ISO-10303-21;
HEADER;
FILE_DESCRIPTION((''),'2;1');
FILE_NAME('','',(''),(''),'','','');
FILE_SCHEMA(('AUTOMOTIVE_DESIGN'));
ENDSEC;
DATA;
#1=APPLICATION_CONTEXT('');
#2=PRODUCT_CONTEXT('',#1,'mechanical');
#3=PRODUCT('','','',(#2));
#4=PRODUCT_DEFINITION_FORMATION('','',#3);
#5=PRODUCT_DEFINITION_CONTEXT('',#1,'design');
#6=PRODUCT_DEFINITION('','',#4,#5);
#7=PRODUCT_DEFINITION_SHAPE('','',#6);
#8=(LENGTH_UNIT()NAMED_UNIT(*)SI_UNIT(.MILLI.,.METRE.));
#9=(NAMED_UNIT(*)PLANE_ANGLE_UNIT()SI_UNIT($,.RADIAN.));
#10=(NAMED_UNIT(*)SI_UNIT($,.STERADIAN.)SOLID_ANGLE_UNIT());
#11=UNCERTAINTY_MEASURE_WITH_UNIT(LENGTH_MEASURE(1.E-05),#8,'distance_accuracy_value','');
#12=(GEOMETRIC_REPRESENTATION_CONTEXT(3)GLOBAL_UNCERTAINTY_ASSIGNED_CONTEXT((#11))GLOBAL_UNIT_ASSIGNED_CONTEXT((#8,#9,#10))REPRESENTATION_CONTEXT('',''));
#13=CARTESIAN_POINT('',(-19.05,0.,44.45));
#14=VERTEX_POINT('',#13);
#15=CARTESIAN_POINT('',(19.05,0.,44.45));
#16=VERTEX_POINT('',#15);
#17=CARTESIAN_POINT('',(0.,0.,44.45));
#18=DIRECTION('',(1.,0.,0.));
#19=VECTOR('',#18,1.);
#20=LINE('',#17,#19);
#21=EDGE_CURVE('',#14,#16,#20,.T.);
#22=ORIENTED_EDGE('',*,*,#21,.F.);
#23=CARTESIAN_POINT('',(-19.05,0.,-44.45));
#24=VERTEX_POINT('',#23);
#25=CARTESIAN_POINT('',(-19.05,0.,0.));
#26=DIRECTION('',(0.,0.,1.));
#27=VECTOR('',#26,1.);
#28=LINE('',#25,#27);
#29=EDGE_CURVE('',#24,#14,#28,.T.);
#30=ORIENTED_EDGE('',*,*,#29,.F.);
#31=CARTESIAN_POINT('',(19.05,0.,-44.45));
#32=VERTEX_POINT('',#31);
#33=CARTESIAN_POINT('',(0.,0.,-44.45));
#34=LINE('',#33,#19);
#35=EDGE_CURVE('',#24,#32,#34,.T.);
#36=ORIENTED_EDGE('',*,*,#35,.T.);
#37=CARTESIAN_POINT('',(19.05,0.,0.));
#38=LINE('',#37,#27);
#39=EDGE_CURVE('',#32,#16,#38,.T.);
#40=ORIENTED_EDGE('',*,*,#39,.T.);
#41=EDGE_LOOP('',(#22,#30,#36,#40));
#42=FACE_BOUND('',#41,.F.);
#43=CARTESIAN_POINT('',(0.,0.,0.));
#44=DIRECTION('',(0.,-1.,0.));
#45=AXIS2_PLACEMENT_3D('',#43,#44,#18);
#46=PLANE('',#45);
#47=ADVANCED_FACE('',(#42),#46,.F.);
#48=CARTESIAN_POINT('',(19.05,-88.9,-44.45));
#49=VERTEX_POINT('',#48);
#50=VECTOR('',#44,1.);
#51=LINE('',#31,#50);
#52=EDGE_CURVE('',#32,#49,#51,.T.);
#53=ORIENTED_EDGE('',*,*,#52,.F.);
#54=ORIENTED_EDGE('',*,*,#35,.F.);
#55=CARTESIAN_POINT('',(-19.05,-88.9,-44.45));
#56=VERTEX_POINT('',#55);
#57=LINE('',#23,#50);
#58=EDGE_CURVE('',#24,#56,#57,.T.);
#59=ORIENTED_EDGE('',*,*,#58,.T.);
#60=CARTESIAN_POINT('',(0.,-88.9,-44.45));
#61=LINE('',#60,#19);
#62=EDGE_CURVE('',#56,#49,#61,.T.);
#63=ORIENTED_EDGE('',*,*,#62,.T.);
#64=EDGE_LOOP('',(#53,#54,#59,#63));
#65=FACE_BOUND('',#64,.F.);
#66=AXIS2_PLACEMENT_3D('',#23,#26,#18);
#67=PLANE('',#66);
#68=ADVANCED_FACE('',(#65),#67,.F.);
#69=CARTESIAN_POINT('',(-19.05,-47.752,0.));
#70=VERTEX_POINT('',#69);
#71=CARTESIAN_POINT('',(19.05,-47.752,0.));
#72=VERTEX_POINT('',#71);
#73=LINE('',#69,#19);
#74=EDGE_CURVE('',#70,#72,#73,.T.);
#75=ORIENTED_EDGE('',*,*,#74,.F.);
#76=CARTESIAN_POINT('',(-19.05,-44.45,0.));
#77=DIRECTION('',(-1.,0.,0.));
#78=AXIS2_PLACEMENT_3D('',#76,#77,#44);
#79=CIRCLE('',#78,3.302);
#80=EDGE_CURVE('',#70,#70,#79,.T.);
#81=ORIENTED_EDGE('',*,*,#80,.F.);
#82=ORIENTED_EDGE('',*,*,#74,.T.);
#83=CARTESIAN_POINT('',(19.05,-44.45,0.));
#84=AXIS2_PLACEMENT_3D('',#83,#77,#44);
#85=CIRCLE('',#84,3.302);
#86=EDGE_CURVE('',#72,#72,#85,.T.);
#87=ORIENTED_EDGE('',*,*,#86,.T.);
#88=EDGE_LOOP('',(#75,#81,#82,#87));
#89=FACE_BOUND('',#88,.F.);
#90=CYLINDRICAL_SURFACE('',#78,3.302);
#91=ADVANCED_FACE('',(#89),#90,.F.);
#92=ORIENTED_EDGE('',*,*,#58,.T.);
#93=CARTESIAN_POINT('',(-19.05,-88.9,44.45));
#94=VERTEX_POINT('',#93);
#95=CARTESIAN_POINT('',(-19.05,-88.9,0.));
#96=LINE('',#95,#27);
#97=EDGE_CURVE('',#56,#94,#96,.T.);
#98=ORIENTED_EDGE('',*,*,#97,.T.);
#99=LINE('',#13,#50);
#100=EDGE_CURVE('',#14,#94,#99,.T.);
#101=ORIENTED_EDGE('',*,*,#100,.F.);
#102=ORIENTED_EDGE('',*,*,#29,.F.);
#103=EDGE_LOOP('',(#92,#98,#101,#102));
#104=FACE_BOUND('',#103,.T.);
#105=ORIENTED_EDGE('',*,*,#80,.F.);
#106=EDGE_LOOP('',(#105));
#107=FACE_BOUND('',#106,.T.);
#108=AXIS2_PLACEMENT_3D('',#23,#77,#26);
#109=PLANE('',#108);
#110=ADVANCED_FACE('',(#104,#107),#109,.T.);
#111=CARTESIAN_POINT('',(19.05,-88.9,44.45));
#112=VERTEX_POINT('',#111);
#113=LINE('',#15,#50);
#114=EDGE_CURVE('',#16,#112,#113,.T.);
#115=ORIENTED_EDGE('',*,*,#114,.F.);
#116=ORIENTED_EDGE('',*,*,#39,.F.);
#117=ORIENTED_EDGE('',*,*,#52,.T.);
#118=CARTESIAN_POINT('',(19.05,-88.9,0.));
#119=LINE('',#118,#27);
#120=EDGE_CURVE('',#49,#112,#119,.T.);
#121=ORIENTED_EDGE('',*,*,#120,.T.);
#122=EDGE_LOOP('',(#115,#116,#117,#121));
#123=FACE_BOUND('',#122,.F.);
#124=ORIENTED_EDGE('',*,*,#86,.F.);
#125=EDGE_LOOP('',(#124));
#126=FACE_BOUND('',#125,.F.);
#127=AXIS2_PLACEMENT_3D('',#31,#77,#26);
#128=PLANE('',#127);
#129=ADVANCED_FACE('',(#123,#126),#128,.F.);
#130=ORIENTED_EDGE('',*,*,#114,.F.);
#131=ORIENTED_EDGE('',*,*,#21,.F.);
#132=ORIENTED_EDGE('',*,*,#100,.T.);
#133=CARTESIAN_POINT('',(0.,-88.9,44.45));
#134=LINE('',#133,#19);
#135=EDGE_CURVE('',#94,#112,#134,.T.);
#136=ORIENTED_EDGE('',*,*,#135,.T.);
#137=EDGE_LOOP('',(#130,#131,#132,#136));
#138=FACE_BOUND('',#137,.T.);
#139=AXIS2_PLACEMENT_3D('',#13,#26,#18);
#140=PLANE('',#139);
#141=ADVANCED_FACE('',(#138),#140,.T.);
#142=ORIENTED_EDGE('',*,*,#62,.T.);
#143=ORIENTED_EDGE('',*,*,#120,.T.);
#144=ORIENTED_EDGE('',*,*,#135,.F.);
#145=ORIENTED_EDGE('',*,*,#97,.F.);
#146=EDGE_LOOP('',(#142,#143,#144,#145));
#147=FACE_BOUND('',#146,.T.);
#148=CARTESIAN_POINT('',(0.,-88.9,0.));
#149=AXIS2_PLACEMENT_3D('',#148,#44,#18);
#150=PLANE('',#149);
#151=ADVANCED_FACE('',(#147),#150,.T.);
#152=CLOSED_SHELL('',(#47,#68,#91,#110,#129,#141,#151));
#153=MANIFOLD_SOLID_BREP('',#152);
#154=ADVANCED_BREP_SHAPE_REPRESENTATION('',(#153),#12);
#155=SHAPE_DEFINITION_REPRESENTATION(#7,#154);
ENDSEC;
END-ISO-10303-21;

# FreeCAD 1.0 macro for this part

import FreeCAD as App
import Part
import Sketcher

V = App.Vector
Q = App.Units.Quantity

doc = App.newDocument("Part")
body = doc.addObject("PartDesign::Body", "Body")

# Sketch on XZ plane
sketch1 = body.newObject("Sketcher::SketchObject", "Sketch")
sketch1.AttachmentSupport = (doc.getObject("XZ_Plane"), [""])
sketch1.MapMode = "FlatFace"
sketch1.addGeometry([
    Part.LineSegment(V(-19.05, 44.45, 0), V(-19.05, -44.45, 0)),
    Part.LineSegment(V(-19.05, -44.45, 0), V(19.05, -44.45, 0)),
    Part.LineSegment(V(19.05, -44.45, 0), V(19.05, 44.45, 0)),
    Part.LineSegment(V(19.05, 44.45, 0), V(-19.05, 44.45, 0)),
], False)
sketch1.addConstraint([
    Sketcher.Constraint("Coincident", 0, 2, 1, 1),
    Sketcher.Constraint("Coincident", 1, 2, 2, 1),
    Sketcher.Constraint("Coincident", 2, 2, 3, 1),
    Sketcher.Constraint("Coincident", 3, 2, 0, 1),
    Sketcher.Constraint("Vertical", 0),
    Sketcher.Constraint("Horizontal", 1),
    Sketcher.Constraint("Vertical", 2),
    Sketcher.Constraint("Horizontal", 3),
    Sketcher.Constraint("Symmetric", 0, 2, 2, 2, -1, 1),
    Sketcher.Constraint("DistanceX", 1, 1, 1, 2, Q("1.5 in")),
    Sketcher.Constraint("DistanceY", 0, 2, 0, 1, Q("3.5 in")),
])
pad1 = body.newObject("PartDesign::Pad", "Pad")
pad1.Profile = sketch1
pad1.Length = Q("3.5 in")

# Sketch on YZ plane
sketch2 = body.newObject("Sketcher::SketchObject", "Sketch001")
sketch2.AttachmentSupport = (doc.getObject("YZ_Plane"), [""])
sketch2.MapMode = "FlatFace"
sketch2.AttachmentOffset = App.Placement(V(0, 0, -0.75 * 25.4), App.Rotation())
sketch2.addGeometry(Part.Circle(V(-44.45, 0, 0), V(0, 0, 1), 3.302), False)
sketch2.addConstraint([
    Sketcher.Constraint("PointOnObject", 0, 3, -1),
    Sketcher.Constraint("Diameter", 0, Q("0.26 in")),
    Sketcher.Constraint("DistanceX", 0, 3, -1, 1, Q("1.75 in")),
])
pocket1 = body.newObject("PartDesign::Pocket", "Pocket")
pocket1.Profile = sketch2
pocket1.Type = "ThroughAll"
pocket1.Reversed = True

doc.recompute()
